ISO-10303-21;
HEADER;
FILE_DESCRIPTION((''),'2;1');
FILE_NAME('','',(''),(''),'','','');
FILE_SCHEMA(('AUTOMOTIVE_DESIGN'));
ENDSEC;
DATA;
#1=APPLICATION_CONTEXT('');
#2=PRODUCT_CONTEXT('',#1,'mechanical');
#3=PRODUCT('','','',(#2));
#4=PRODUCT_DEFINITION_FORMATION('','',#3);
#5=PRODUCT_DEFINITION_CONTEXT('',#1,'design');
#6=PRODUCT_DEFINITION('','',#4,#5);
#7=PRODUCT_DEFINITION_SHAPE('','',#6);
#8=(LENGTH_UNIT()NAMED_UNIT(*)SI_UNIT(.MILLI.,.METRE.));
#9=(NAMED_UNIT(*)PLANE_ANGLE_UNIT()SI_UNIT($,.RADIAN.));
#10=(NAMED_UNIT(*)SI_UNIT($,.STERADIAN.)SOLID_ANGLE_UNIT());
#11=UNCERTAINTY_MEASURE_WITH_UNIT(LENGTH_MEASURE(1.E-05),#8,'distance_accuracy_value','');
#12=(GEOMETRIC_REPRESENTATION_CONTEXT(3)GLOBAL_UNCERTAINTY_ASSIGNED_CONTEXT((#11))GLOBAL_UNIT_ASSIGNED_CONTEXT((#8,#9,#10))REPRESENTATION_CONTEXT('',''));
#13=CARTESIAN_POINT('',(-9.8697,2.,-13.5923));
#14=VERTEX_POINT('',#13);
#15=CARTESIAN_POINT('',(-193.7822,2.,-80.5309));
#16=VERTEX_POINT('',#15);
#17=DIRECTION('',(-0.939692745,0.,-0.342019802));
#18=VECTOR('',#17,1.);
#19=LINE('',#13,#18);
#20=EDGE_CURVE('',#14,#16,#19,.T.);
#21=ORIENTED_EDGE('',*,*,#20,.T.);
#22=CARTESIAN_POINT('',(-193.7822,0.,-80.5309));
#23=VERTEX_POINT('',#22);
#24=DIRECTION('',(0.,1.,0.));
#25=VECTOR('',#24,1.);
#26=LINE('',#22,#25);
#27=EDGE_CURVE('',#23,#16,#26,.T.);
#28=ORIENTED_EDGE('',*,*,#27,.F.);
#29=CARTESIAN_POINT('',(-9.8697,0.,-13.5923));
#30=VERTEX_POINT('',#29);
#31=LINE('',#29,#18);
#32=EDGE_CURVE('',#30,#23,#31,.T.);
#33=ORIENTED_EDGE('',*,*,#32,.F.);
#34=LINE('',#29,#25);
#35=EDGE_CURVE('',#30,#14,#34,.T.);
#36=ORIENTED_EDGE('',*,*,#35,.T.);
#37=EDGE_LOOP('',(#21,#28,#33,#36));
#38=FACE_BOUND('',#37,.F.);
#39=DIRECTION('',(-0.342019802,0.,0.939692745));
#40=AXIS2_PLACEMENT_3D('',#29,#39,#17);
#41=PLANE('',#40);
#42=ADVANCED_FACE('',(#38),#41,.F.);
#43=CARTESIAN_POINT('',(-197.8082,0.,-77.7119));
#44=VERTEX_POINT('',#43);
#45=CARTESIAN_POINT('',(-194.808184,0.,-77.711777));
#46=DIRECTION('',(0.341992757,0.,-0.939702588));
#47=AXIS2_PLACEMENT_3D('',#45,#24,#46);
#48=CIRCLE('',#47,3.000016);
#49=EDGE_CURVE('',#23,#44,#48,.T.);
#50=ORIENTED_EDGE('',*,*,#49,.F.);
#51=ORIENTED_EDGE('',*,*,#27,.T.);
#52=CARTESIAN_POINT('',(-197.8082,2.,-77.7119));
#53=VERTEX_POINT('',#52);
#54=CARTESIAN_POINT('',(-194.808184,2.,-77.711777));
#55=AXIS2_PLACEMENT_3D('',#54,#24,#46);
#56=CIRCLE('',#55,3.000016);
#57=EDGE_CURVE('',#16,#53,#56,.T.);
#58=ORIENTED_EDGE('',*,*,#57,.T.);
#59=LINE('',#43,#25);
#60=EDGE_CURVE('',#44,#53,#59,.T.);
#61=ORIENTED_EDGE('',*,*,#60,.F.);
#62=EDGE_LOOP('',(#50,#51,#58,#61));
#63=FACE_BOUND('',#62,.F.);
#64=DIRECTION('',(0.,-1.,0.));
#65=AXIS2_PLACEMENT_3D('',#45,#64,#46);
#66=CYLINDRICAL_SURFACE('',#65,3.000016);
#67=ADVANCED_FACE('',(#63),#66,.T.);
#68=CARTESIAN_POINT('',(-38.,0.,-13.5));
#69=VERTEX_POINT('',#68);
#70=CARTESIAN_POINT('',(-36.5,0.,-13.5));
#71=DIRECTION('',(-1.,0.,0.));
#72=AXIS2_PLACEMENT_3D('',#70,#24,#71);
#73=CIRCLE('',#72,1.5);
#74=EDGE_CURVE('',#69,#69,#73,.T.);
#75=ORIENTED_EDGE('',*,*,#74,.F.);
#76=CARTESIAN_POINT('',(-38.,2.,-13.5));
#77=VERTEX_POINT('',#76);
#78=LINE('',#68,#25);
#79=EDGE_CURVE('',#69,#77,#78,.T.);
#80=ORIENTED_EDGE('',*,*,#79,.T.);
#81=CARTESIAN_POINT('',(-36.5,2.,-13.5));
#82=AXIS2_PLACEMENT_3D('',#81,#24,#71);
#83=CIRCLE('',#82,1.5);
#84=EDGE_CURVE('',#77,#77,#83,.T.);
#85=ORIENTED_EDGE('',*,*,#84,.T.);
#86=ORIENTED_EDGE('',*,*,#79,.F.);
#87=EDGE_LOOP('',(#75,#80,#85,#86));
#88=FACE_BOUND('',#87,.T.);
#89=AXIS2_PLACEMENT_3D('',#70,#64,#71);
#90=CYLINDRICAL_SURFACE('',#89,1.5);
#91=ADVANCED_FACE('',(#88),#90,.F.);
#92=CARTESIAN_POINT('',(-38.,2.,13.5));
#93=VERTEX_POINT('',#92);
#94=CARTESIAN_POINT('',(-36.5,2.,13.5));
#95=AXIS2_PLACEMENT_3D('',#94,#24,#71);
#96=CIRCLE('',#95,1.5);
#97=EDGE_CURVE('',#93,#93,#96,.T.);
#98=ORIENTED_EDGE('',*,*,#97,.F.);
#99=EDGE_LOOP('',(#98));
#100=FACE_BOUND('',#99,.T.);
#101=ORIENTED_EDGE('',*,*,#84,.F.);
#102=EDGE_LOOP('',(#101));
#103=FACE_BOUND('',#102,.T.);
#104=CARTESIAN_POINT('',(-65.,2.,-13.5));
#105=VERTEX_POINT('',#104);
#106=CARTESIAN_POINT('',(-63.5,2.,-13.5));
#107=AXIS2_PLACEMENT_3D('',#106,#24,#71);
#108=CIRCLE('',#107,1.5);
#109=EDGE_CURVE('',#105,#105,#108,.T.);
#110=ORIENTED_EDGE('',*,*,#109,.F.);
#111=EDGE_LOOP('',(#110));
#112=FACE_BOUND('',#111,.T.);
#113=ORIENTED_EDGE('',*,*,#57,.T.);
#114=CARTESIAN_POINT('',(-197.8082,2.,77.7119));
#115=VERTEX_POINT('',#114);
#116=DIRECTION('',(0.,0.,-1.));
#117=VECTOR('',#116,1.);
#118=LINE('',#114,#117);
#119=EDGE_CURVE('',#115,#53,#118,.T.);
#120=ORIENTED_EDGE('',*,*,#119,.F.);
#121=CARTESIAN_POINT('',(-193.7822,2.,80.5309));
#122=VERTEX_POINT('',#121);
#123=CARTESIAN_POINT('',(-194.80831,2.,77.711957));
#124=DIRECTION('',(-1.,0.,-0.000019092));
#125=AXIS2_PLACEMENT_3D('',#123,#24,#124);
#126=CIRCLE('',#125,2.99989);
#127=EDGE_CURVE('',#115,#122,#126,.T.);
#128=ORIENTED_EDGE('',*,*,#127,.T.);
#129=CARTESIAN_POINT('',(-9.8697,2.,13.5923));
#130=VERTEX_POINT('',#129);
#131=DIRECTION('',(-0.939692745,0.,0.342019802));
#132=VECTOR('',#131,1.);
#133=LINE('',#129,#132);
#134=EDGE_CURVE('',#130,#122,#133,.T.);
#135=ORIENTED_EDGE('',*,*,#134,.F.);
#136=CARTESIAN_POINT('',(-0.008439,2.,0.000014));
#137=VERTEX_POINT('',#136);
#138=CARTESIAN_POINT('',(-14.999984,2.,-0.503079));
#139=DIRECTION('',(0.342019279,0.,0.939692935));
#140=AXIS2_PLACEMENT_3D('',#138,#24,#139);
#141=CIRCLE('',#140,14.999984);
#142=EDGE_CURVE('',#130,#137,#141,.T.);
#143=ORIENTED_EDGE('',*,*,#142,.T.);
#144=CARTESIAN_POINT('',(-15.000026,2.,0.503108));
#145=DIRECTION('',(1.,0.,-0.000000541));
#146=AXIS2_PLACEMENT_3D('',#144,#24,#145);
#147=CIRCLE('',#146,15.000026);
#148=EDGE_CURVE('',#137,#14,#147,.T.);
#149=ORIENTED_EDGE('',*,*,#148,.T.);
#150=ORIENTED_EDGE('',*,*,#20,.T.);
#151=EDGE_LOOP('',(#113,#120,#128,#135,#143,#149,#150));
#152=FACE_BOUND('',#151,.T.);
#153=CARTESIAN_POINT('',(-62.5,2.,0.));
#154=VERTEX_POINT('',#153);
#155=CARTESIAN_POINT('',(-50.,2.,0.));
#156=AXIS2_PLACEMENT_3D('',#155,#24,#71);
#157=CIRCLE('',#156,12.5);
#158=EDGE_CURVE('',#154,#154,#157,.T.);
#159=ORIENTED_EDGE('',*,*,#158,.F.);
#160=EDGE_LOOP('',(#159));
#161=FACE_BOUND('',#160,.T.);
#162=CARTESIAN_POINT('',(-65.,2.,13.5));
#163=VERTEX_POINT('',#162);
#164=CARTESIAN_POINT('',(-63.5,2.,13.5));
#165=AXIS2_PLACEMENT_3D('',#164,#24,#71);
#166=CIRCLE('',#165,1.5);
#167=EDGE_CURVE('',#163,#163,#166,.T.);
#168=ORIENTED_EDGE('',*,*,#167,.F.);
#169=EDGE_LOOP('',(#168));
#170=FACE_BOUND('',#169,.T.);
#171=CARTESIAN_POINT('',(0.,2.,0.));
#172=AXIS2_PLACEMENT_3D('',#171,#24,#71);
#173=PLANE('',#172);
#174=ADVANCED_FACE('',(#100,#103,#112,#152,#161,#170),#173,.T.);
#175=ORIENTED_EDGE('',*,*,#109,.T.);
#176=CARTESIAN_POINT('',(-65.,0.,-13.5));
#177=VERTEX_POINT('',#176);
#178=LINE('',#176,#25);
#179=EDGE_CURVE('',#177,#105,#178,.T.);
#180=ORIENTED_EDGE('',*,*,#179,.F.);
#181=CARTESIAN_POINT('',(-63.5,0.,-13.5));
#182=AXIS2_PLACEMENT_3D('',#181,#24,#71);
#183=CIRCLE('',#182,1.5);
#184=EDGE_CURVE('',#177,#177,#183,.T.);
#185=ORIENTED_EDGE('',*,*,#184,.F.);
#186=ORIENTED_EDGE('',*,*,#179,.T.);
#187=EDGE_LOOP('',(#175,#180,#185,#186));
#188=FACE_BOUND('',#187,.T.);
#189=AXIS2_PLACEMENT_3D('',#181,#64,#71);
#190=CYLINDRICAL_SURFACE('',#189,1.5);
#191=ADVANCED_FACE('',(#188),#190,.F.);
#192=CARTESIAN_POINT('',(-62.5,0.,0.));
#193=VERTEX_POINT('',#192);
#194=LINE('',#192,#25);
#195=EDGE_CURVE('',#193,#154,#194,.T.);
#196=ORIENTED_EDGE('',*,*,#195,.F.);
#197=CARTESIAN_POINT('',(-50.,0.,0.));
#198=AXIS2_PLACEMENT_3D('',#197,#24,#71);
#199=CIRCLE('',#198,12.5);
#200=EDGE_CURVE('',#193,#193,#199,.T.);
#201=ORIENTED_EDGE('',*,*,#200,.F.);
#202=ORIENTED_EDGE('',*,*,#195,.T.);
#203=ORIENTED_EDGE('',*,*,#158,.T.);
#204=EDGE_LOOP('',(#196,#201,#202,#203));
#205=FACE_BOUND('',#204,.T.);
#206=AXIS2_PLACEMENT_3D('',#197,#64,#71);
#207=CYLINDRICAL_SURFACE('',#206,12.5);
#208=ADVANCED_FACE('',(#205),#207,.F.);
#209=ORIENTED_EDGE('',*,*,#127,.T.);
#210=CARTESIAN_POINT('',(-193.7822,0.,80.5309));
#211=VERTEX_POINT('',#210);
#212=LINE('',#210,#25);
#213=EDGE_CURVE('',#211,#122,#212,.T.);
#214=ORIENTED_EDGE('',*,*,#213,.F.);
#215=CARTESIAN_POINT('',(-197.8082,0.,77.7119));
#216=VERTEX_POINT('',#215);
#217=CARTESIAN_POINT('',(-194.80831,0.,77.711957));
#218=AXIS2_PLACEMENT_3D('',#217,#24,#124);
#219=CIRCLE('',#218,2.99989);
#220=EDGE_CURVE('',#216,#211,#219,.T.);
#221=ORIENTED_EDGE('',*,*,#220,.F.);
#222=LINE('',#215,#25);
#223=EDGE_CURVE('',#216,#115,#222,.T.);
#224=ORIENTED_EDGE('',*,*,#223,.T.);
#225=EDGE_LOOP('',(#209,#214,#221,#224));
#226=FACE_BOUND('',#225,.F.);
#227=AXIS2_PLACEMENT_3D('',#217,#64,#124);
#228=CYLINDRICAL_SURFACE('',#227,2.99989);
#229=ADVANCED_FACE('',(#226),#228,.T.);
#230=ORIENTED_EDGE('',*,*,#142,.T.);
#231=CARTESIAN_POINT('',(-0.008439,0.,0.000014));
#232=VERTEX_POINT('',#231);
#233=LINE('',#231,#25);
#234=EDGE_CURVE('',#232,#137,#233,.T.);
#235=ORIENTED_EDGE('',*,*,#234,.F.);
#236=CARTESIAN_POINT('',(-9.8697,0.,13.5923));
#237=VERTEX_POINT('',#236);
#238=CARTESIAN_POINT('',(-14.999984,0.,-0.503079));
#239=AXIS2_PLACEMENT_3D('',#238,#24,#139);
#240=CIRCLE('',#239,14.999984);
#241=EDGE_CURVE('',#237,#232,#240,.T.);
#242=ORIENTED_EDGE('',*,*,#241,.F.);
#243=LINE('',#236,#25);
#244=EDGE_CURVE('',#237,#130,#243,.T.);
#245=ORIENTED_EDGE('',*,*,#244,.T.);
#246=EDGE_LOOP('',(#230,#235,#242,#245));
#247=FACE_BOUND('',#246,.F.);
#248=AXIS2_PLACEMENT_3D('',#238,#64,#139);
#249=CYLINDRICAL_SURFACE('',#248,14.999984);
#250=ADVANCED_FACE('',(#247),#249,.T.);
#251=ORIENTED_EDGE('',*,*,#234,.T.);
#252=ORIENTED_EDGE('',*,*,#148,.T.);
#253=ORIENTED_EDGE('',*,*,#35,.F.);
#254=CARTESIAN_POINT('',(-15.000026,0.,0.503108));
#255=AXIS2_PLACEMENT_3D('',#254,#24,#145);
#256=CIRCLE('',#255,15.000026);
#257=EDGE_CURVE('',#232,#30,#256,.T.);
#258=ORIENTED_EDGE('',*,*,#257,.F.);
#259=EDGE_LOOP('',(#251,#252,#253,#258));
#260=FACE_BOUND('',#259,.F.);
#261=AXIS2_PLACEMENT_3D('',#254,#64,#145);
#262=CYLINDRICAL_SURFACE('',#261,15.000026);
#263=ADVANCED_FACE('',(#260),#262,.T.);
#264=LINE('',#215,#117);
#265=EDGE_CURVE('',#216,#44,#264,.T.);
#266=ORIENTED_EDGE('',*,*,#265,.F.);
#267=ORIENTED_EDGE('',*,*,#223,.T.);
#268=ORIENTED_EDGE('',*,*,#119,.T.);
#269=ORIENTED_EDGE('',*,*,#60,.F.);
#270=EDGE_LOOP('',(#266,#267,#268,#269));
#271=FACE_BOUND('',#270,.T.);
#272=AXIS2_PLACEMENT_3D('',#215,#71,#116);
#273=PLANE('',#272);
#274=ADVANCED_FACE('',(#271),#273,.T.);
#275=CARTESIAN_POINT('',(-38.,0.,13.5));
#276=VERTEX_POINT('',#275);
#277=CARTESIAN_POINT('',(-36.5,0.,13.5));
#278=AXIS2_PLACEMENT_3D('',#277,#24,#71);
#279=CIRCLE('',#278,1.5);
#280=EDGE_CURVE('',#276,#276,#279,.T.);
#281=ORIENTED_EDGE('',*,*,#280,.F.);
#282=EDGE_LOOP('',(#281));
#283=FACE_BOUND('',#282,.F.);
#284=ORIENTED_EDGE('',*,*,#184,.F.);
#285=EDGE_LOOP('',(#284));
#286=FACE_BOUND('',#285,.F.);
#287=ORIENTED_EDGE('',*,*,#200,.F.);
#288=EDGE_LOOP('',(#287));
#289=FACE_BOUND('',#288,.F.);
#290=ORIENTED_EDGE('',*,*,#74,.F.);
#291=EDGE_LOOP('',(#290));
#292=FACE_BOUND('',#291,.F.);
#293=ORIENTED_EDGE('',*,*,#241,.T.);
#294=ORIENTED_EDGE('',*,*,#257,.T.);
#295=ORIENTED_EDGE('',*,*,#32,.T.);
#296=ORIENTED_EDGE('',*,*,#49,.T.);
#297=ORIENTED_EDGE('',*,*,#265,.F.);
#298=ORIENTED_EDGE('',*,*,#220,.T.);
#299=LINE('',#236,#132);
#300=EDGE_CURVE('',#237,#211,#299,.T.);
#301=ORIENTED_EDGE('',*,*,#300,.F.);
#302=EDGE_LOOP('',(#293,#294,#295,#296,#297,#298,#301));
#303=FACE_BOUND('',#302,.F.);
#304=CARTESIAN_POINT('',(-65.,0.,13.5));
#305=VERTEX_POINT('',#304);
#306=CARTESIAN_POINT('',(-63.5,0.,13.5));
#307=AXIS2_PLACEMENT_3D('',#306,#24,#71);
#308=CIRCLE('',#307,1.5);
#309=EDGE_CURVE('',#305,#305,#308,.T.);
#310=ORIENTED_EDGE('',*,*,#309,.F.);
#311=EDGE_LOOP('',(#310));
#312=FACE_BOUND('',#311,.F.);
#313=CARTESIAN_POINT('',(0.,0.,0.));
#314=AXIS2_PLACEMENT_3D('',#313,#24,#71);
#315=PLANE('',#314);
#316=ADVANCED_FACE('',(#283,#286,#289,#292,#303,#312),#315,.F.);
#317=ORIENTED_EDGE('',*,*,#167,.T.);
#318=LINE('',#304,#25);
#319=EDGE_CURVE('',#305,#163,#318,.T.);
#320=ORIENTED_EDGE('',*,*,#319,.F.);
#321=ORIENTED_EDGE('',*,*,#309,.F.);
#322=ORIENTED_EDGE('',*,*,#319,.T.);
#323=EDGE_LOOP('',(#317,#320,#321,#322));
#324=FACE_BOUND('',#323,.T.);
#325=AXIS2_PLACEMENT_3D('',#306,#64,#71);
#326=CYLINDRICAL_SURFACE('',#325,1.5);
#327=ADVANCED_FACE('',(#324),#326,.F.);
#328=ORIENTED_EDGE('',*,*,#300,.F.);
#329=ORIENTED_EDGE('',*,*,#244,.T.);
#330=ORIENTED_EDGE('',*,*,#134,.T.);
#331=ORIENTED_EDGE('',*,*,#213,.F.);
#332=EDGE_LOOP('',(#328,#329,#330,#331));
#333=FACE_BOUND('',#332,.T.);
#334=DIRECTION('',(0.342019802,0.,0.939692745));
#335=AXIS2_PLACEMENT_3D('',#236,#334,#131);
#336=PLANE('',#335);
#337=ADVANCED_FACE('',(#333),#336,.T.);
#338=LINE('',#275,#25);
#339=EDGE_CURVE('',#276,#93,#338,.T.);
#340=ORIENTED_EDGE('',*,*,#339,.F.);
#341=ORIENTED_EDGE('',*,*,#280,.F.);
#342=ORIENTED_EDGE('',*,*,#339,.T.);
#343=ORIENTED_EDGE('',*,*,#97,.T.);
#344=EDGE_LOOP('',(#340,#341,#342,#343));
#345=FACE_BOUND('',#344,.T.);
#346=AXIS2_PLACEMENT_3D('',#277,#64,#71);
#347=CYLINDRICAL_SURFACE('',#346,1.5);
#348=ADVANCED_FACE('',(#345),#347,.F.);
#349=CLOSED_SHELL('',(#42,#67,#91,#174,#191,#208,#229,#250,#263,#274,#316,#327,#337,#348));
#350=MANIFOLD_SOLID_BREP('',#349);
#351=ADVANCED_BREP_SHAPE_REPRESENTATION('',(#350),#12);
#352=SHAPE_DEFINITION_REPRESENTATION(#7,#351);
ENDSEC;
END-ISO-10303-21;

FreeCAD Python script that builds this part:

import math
import FreeCAD as App
import Part
import Sketcher
from FreeCAD import Vector
Q = App.Units.Quantity

doc = App.newDocument("Part")
body = doc.addObject("PartDesign::Body", "Body")

sketch1 = body.newObject("Sketcher::SketchObject", "Sketch")
sketch1.AttachmentSupport = (doc.getObject("XZ_Plane"), [""])
sketch1.MapMode = "FlatFace"
sketch1.addGeometry([
    Part.ArcOfCircle(Part.Circle(Vector(-15, -0.5, 0), Vector(0, 0, 1), 15), math.radians(2), math.radians(70)),
    Part.ArcOfCircle(Part.Circle(Vector(-15, 0.5, 0), Vector(0, 0, 1), 15), math.radians(-70), math.radians(-2)),
    Part.LineSegment(Vector(-9.9, -13.6, 0), Vector(-193.8, -80.5, 0)),
    Part.ArcOfCircle(Part.Circle(Vector(-194.8, -77.7, 0), Vector(0, 0, 1), 3), math.radians(180), math.radians(290)),
    Part.LineSegment(Vector(-197.8, -77.7, 0), Vector(-197.8, 77.7, 0)),
    Part.ArcOfCircle(Part.Circle(Vector(-194.8, 77.7, 0), Vector(0, 0, 1), 3), math.radians(70), math.radians(180)),
    Part.LineSegment(Vector(-193.8, 80.5, 0), Vector(-9.9, 13.6, 0)),
], False)
sketch1.addConstraint([
    Sketcher.Constraint("Coincident", 0, 1, 1, 2),
    Sketcher.Constraint("Tangent", 1, 1, 2, 1),
    Sketcher.Constraint("Tangent", 2, 2, 3, 2),
    Sketcher.Constraint("Tangent", 3, 1, 4, 1),
    Sketcher.Constraint("Tangent", 4, 2, 5, 2),
    Sketcher.Constraint("Tangent", 5, 1, 6, 1),
    Sketcher.Constraint("Tangent", 6, 2, 0, 2),
    Sketcher.Constraint("Vertical", 4),
    Sketcher.Constraint("Equal", 0, 1),
    Sketcher.Constraint("Equal", 3, 5),
    Sketcher.Constraint("Symmetric", 0, 3, 1, 3, -1),
    Sketcher.Constraint("Vertical", 2, 2, 5, 1),
    Sketcher.Constraint("Radius", 0, 15.0),
    Sketcher.Constraint("Radius", 3, 3.0),
    Sketcher.Constraint("DistanceX", 0, 3, -1, 1, 15.0),
    Sketcher.Constraint("Angle", 2, Q("-160 deg")),
    Sketcher.Constraint("DistanceY", 4, 1, 4, 2, 155.4238),
    Sketcher.Constraint("DistanceY", 0, 3, -1, 1, 0.503),
])
pad1 = body.newObject("PartDesign::Pad", "Pad")
pad1.Profile = sketch1
pad1.Length = 2
pad1.Reversed = True

sketch2 = body.newObject("Sketcher::SketchObject", "Sketch001")
sketch2.AttachmentSupport = (doc.getObject("XZ_Plane"), [""])
sketch2.MapMode = "FlatFace"
sketch2.addGeometry([
    Part.Circle(Vector(-50, 0, 0), Vector(0, 0, 1), 12.5),
    Part.Circle(Vector(-63.5, 13.5, 0), Vector(0, 0, 1), 1.5),
    Part.Circle(Vector(-63.5, -13.5, 0), Vector(0, 0, 1), 1.5),
    Part.Circle(Vector(-36.5, 13.5, 0), Vector(0, 0, 1), 1.5),
    Part.Circle(Vector(-36.5, -13.5, 0), Vector(0, 0, 1), 1.5),
], False)
sketch2.addConstraint([
    Sketcher.Constraint("Equal", 1, 2),
    Sketcher.Constraint("Equal", 2, 3),
    Sketcher.Constraint("Equal", 3, 4),
    Sketcher.Constraint("Symmetric", 1, 3, 2, 3, -1),
    Sketcher.Constraint("Symmetric", 3, 3, 4, 3, -1),
    Sketcher.Constraint("PointOnObject", 0, 3, -1),
    Sketcher.Constraint("Horizontal", 1, 3, 3, 3),
    Sketcher.Constraint("Diameter", 0, 25.0),
    Sketcher.Constraint("Diameter", 1, 3.0),
    Sketcher.Constraint("DistanceX", 0, 3, -1, 1, 50.0),
    Sketcher.Constraint("DistanceY", 2, 3, 1, 3, 27.0),
    Sketcher.Constraint("DistanceX", 1, 3, 3, 3, 27.0),
    Sketcher.Constraint("DistanceX", 1, 3, -1, 1, 63.5),
])
pocket1 = body.newObject("PartDesign::Pocket", "Pocket")
pocket1.Profile = sketch2
pocket1.Length = 2

doc.recompute()
